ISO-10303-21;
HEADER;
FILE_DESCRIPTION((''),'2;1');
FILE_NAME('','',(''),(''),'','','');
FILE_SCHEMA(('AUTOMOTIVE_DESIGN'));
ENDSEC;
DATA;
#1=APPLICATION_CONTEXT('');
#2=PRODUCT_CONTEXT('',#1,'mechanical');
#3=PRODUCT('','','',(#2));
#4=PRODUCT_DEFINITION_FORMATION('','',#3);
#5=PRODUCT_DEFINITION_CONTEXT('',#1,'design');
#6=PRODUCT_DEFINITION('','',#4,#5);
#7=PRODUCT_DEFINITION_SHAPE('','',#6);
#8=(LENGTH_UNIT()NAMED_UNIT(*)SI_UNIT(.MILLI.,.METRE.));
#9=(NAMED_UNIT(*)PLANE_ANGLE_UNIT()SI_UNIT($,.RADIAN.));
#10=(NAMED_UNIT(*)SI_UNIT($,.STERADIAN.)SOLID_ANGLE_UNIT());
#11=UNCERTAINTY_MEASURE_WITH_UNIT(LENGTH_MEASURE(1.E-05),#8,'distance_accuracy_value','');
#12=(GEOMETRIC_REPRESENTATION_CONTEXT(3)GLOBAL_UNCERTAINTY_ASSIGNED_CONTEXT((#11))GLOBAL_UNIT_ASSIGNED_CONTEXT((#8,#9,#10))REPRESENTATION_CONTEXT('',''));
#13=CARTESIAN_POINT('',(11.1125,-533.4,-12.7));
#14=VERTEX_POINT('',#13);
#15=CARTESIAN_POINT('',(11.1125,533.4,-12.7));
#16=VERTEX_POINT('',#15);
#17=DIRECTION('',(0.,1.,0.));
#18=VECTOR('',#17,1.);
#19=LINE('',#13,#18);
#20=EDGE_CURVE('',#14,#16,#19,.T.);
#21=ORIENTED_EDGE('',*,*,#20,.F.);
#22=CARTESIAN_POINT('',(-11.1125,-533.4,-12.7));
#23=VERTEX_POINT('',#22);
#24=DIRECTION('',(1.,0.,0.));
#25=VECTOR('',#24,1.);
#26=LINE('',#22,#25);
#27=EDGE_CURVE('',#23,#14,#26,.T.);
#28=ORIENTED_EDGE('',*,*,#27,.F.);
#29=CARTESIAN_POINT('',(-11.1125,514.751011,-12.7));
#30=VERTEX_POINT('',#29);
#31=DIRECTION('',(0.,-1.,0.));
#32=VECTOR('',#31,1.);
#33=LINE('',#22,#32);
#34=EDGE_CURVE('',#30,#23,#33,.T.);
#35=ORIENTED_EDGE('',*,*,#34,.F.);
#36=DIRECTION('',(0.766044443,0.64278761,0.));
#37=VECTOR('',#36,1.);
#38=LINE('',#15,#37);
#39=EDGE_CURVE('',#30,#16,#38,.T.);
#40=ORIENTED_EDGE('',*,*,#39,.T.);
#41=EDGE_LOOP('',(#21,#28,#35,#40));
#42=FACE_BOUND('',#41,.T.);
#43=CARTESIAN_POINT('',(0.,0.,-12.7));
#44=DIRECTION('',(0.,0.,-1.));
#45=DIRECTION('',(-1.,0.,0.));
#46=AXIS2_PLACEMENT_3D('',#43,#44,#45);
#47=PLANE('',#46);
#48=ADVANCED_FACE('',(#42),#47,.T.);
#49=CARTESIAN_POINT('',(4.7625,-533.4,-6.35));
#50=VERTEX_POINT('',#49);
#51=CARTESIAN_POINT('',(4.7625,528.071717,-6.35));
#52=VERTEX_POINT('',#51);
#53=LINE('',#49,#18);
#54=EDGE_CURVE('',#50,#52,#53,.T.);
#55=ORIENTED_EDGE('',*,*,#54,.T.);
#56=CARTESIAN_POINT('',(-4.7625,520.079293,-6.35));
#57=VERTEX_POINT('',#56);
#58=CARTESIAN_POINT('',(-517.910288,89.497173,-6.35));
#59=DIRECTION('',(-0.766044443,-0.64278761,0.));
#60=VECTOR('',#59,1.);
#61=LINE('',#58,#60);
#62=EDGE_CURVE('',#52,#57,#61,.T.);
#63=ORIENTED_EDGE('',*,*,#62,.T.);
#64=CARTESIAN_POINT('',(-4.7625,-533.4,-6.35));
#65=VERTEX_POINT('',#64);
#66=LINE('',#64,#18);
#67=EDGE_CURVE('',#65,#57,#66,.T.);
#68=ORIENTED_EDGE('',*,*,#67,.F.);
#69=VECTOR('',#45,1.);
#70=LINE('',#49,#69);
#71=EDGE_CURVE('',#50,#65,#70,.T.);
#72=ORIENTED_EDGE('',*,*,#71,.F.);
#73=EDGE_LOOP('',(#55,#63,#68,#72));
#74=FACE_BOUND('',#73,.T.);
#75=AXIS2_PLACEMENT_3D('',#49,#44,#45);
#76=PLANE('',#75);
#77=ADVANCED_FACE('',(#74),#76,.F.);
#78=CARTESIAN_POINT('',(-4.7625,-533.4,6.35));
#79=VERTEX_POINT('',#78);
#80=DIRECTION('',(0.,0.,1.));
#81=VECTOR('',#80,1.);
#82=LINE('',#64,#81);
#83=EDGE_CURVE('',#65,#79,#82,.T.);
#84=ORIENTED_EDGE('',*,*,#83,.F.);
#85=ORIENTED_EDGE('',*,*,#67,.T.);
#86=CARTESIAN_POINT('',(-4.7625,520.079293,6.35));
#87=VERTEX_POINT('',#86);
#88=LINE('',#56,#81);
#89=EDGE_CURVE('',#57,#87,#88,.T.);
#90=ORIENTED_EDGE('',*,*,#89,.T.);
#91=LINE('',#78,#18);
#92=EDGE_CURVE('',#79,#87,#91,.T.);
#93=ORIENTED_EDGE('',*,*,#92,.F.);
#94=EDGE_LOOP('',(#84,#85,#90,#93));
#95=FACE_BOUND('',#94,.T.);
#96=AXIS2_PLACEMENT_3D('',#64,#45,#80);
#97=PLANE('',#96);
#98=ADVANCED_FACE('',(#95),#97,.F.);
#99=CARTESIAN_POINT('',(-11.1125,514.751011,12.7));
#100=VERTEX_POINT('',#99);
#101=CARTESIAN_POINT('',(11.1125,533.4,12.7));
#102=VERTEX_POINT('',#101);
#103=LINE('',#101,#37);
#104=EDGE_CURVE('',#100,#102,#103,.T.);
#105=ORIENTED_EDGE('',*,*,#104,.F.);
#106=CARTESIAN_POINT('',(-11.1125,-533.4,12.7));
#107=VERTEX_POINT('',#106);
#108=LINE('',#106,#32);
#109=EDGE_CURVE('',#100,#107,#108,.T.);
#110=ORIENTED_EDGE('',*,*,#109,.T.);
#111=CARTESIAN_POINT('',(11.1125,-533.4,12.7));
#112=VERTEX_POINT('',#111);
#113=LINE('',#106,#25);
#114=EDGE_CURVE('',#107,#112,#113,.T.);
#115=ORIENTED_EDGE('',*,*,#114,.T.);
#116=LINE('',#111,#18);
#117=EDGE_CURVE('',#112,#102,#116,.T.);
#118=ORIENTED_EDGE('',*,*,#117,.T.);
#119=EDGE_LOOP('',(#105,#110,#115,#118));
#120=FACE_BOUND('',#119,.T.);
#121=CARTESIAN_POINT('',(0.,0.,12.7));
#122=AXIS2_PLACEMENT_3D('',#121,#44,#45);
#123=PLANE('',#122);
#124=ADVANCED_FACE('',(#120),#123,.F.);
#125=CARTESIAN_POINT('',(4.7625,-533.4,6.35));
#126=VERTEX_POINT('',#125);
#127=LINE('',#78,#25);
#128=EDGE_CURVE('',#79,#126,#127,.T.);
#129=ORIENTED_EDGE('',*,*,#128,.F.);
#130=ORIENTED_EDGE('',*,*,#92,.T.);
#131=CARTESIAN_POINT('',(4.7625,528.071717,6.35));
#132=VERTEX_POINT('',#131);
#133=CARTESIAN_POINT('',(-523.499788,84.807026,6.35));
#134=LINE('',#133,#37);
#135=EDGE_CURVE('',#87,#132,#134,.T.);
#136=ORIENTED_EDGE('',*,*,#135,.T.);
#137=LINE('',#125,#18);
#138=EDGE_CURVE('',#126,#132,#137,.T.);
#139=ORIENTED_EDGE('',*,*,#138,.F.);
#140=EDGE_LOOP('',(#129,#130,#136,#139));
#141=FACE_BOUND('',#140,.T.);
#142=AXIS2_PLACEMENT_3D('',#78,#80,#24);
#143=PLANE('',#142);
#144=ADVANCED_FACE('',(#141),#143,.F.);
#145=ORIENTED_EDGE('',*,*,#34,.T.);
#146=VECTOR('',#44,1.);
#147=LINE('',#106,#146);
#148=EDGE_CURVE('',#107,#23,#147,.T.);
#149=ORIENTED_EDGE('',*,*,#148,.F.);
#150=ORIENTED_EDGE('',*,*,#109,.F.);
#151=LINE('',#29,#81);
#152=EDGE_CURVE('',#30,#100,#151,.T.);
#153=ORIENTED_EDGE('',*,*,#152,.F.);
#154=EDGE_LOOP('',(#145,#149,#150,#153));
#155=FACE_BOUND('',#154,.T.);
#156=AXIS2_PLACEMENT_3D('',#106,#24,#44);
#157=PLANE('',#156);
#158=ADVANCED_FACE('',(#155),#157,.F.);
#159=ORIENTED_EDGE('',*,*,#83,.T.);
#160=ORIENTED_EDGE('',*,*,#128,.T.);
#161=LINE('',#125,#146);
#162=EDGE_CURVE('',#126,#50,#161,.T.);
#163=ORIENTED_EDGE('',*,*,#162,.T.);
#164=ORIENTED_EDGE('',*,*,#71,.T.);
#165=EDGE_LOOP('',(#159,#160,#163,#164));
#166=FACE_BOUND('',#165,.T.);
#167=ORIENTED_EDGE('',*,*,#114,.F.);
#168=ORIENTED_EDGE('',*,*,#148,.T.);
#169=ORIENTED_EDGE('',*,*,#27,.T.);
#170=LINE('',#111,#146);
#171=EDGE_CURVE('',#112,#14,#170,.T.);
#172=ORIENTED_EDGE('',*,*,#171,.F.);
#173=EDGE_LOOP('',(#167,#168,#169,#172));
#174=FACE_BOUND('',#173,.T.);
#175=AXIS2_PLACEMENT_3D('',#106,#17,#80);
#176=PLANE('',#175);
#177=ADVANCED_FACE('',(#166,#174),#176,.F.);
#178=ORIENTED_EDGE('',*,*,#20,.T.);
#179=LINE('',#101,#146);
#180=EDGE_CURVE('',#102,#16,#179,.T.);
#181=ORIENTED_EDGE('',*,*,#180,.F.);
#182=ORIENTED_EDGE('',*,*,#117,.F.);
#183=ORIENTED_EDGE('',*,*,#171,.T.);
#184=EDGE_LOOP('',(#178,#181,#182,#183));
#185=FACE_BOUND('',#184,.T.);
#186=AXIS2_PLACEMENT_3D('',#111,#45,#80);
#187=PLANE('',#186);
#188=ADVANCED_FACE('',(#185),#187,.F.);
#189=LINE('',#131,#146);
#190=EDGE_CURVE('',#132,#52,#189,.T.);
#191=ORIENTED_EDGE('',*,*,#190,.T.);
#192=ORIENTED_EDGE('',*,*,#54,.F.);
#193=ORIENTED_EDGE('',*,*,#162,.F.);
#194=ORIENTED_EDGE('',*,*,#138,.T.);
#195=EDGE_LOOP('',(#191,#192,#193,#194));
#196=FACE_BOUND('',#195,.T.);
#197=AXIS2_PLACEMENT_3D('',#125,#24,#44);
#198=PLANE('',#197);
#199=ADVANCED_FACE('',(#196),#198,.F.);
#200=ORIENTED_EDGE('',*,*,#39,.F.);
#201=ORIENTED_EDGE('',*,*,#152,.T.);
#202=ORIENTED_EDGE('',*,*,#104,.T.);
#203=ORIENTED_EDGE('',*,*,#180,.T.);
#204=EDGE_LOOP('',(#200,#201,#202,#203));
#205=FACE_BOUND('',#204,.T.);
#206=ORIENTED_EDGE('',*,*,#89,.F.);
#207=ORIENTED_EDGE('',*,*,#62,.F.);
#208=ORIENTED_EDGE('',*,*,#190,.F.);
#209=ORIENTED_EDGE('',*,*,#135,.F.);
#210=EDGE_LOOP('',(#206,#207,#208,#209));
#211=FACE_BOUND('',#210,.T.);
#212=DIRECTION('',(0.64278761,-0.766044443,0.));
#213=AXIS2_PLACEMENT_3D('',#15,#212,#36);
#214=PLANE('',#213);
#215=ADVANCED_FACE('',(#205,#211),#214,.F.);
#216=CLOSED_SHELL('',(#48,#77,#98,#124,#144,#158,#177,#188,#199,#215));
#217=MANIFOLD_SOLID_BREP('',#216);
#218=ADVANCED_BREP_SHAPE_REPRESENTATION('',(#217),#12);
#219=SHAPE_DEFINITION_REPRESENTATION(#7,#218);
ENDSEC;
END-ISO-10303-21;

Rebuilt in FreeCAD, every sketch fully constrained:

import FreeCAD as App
import Part
import Sketcher

V = App.Vector
Q = App.Units.Quantity

doc = App.newDocument("Part")
body = doc.addObject("PartDesign::Body", "Body")

# Sketch on XY plane
sketch1 = body.newObject("Sketcher::SketchObject", "Sketch")
sketch1.AttachmentSupport = (doc.getObject("XY_Plane"), [""])
sketch1.MapMode = "FlatFace"
sketch1.addGeometry([
    Part.LineSegment(V(-11.1125, 533.4, 0), V(-11.1125, -533.4, 0)),
    Part.LineSegment(V(-11.1125, -533.4, 0), V(11.1125, -533.4, 0)),
    Part.LineSegment(V(11.1125, -533.4, 0), V(11.1125, 533.4, 0)),
    Part.LineSegment(V(11.1125, 533.4, 0), V(-11.1125, 533.4, 0)),
], False)
sketch1.addConstraint([
    Sketcher.Constraint("Coincident", 0, 2, 1, 1),
    Sketcher.Constraint("Coincident", 1, 2, 2, 1),
    Sketcher.Constraint("Coincident", 2, 2, 3, 1),
    Sketcher.Constraint("Coincident", 3, 2, 0, 1),
    Sketcher.Constraint("Vertical", 0),
    Sketcher.Constraint("Horizontal", 1),
    Sketcher.Constraint("Vertical", 2),
    Sketcher.Constraint("Horizontal", 3),
    Sketcher.Constraint("Symmetric", 0, 2, 2, 2, -1, 1),
    Sketcher.Constraint("DistanceY", 0, 2, 0, 1, Q("42 in")),
    Sketcher.Constraint("DistanceX", 1, 1, 1, 2, Q("0.875 in")),
])
pad1 = body.newObject("PartDesign::Pad", "Pad")
pad1.Profile = sketch1
pad1.Length = Q("1 in")
pad1.Midplane = True

# Sketch on XZ plane
sketch2 = body.newObject("Sketcher::SketchObject", "Sketch001")
sketch2.AttachmentSupport = (doc.getObject("XZ_Plane"), [""])
sketch2.MapMode = "FlatFace"
sketch2.AttachmentOffset = App.Placement(V(0, 0, -21 * 25.4), App.Rotation())
sketch2.addGeometry([
    Part.LineSegment(V(-4.7625, -6.35, 0), V(-4.7625, 6.35, 0)),
    Part.LineSegment(V(-4.7625, 6.35, 0), V(4.7625, 6.35, 0)),
    Part.LineSegment(V(4.7625, 6.35, 0), V(4.7625, -6.35, 0)),
    Part.LineSegment(V(4.7625, -6.35, 0), V(-4.7625, -6.35, 0)),
], False)
sketch2.addConstraint([
    Sketcher.Constraint("Coincident", 0, 2, 1, 1),
    Sketcher.Constraint("Coincident", 1, 2, 2, 1),
    Sketcher.Constraint("Coincident", 2, 2, 3, 1),
    Sketcher.Constraint("Coincident", 3, 2, 0, 1),
    Sketcher.Constraint("Vertical", 0),
    Sketcher.Constraint("Horizontal", 1),
    Sketcher.Constraint("Vertical", 2),
    Sketcher.Constraint("Horizontal", 3),
    Sketcher.Constraint("Symmetric", 0, 2, 2, 2, -1, 1),
    Sketcher.Constraint("DistanceY", 0, 1, 0, 2, Q("0.5 in")),
    Sketcher.Constraint("DistanceX", 1, 1, 1, 2, Q("0.375 in")),
])
pocket1 = body.newObject("PartDesign::Pocket", "Pocket")
pocket1.Profile = sketch2
pocket1.Type = "ThroughAll"
pocket1.Reversed = True

# Sketch on XY plane
sketch3 = body.newObject("Sketcher::SketchObject", "Sketch002")
sketch3.AttachmentSupport = (doc.getObject("XY_Plane"), [""])
sketch3.MapMode = "FlatFace"
sketch3.AttachmentOffset = App.Placement(V(0, 0, 0.5 * 25.4), App.Rotation())
sketch3.addGeometry([
    Part.LineSegment(V(-11.1125, 514.751011, 0), V(11.1125, 533.4, 0)),
    Part.LineSegment(V(11.1125, 533.4, 0), V(-11.1125, 533.4, 0)),
    Part.LineSegment(V(-11.1125, 533.4, 0), V(-11.1125, 514.751011, 0)),
], False)
sketch3.addConstraint([
    Sketcher.Constraint("Coincident", 0, 2, 1, 1),
    Sketcher.Constraint("Coincident", 1, 2, 2, 1),
    Sketcher.Constraint("Coincident", 2, 2, 0, 1),
    Sketcher.Constraint("Horizontal", 1),
    Sketcher.Constraint("Vertical", 2),
    Sketcher.Constraint("DistanceY", -1, 1, 0, 2, Q("21 in")),
    Sketcher.Constraint("Angle", 0, Q("40 deg")),
    Sketcher.Constraint("DistanceX", 1, 2, 1, 1, Q("0.875 in")),
    Sketcher.Constraint("DistanceX", -1, 1, 0, 2, Q("0.4375 in")),
])
pocket2 = body.newObject("PartDesign::Pocket", "Pocket001")
pocket2.Profile = sketch3
pocket2.Type = "ThroughAll"

doc.recompute()
